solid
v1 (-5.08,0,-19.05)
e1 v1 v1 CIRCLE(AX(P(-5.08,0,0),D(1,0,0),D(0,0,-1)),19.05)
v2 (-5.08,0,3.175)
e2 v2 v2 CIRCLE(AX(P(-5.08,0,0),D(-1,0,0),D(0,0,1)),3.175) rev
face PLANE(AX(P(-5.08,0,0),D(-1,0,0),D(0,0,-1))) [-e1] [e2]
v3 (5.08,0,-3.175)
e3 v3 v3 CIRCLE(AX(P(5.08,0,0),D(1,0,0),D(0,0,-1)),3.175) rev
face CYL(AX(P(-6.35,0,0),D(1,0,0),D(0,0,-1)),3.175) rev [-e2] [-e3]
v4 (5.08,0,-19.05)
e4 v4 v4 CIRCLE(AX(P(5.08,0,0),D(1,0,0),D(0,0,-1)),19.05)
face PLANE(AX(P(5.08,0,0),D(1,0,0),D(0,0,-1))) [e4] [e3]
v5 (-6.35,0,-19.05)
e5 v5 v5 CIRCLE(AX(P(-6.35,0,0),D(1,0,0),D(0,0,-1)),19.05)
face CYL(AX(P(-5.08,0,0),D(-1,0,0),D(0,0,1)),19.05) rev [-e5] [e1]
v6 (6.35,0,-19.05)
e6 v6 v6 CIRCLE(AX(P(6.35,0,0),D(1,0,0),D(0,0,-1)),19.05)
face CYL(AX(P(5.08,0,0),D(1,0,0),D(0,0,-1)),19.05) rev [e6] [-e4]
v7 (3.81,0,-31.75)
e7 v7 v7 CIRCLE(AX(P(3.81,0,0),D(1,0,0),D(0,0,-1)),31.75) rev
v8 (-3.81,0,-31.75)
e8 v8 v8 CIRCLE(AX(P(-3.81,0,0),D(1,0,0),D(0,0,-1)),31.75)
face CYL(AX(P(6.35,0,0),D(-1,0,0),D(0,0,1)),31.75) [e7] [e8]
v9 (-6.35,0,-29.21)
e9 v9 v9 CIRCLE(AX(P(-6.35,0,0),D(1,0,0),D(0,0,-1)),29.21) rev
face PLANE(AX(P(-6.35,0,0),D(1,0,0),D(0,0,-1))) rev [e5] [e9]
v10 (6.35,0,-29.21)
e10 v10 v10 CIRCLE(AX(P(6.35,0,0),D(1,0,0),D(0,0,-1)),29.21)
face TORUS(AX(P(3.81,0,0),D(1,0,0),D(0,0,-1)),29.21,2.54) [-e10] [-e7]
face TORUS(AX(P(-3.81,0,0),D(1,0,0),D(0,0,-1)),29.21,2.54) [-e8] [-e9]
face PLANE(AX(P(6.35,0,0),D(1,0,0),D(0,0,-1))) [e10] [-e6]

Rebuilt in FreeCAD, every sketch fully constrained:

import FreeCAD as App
import Part
import Sketcher

V = App.Vector
Q = App.Units.Quantity


def edges_at(feature, points):
    """Names of the edges that pass closest to the given points."""
    edges = feature.Shape.Edges
    near = lambda p: min(range(len(edges)), key=lambda i: edges[i].distToShape(Part.Vertex(*p))[0])
    return sorted({f"Edge{near(p) + 1}" for p in points})

doc = App.newDocument("Part")
body = doc.addObject("PartDesign::Body", "Body")

# Sketch on YZ plane
sketch1 = doc.addObject("Sketcher::SketchObject", "Sketch")
body.addObject(sketch1)
sketch1.AttachmentSupport = (doc.YZ_Plane, [""])
sketch1.MapMode = "FlatFace"
sketch1.addGeometry(Part.Circle(V(0, 0, 0), V(0, 0, 1), 32), False)
sketch1.addConstraint([
    Sketcher.Constraint("Coincident", 0, 3, -1, 1),
    Sketcher.Constraint("Diameter", 0, Q("2.5 in")),
])
pad1 = doc.addObject("PartDesign::Pad", "Pad")
body.addObject(pad1)
pad1.Profile = sketch1
pad1.Length = Q("0.5 in")
pad1.Midplane = True

# Sketch on YZ plane
sketch2 = doc.addObject("Sketcher::SketchObject", "Sketch001")
body.addObject(sketch2)
sketch2.AttachmentSupport = (doc.YZ_Plane, [""])
sketch2.MapMode = "FlatFace"
sketch2.AttachmentOffset = App.Placement(V(0, 0, 0.25 * 25.4), App.Rotation())
sketch2.addGeometry(Part.Circle(V(0, 0, 0), V(0, 0, 1), 3.2), False)
sketch2.addConstraint([
    Sketcher.Constraint("Coincident", 0, 3, -1, 1),
    Sketcher.Constraint("Diameter", 0, Q("0.25 in")),
])
pocket1 = doc.addObject("PartDesign::Pocket", "Pocket")
body.addObject(pocket1)
pocket1.Profile = sketch2
pocket1.Type = "ThroughAll"
doc.recompute()

fillet = doc.addObject("PartDesign::Fillet", "Fillet")
body.addObject(fillet)
fillet.Base = (pocket1, edges_at(pocket1, [(-6.35, 0, 31.75), (6.35, 0, 31.75)]))
fillet.Radius = Q("0.1 in")

# Sketch on YZ plane
sketch3 = doc.addObject("Sketcher::SketchObject", "Sketch002")
body.addObject(sketch3)
sketch3.AttachmentSupport = (doc.YZ_Plane, [""])
sketch3.MapMode = "FlatFace"
sketch3.AttachmentOffset = App.Placement(V(0, 0, 0.25 * 25.4), App.Rotation())
sketch3.addGeometry(Part.Circle(V(0, 0, 0), V(0, 0, 1), 19), False)
sketch3.addConstraint([
    Sketcher.Constraint("Coincident", 0, 3, -1, 1),
    Sketcher.Constraint("Diameter", 0, Q("1.5 in")),
])
pocket2 = doc.addObject("PartDesign::Pocket", "Pocket001")
body.addObject(pocket2)
pocket2.Profile = sketch3
pocket2.Length = Q("0.05 in")
doc.recompute()

mirrored = doc.addObject("PartDesign::Mirrored", "Mirrored")
body.addObject(mirrored)
mirrored.Originals = [pocket2]
mirrored.MirrorPlane = (doc.YZ_Plane, [""])
body.Tip = mirrored

doc.recompute()
